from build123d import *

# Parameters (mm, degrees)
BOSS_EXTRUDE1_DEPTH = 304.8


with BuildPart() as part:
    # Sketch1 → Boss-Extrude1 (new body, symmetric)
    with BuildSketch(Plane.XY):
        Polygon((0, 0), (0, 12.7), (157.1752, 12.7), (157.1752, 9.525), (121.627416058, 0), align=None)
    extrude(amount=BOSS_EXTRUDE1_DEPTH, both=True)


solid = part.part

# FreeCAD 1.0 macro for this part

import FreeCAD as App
import Part
import Sketcher
from FreeCAD import Vector
Q = App.Units.Quantity

doc = App.newDocument("Part")
body = doc.addObject("PartDesign::Body", "Body")

sketch1 = doc.addObject("Sketcher::SketchObject", "Sketch")
body.addObject(sketch1)
sketch1.AttachmentSupport = (doc.XY_Plane, [""])
sketch1.MapMode = "FlatFace"
sketch1.addGeometry([
    Part.LineSegment(Vector(0, 12.7, 0), Vector(0, 0, 0)),
    Part.LineSegment(Vector(0, 0, 0), Vector(121.627416, 0, 0)),
    Part.LineSegment(Vector(121.627416, 0, 0), Vector(157.1752, 9.525, 0)),
    Part.LineSegment(Vector(157.1752, 9.525, 0), Vector(157.1752, 12.7, 0)),
    Part.LineSegment(Vector(157.1752, 12.7, 0), Vector(0, 12.7, 0)),
], False)
sketch1.addConstraint([
    Sketcher.Constraint("Coincident", 0, 2, 1, 1),
    Sketcher.Constraint("Coincident", 1, 2, 2, 1),
    Sketcher.Constraint("Coincident", 2, 2, 3, 1),
    Sketcher.Constraint("Coincident", 3, 2, 4, 1),
    Sketcher.Constraint("Coincident", 4, 2, 0, 1),
    Sketcher.Constraint("Vertical", 0),
    Sketcher.Constraint("Horizontal", 1),
    Sketcher.Constraint("Vertical", 3),
    Sketcher.Constraint("Horizontal", 4),
    Sketcher.Constraint("Coincident", 0, 2, -1, 1),
    Sketcher.Constraint("DistanceY", 0, 2, 0, 1, Q("0.5 in")),
    Sketcher.Constraint("Angle", 2, Q("15 deg")),
    Sketcher.Constraint("DistanceX", 4, 2, 4, 1, Q("6.188 in")),
    Sketcher.Constraint("DistanceY", 3, 1, 3, 2, Q("0.125 in")),
])
pad1 = doc.addObject("PartDesign::Pad", "Pad")
body.addObject(pad1)
pad1.Profile = sketch1
pad1.Length = Q("24 in")
pad1.Midplane = True

doc.recompute()
